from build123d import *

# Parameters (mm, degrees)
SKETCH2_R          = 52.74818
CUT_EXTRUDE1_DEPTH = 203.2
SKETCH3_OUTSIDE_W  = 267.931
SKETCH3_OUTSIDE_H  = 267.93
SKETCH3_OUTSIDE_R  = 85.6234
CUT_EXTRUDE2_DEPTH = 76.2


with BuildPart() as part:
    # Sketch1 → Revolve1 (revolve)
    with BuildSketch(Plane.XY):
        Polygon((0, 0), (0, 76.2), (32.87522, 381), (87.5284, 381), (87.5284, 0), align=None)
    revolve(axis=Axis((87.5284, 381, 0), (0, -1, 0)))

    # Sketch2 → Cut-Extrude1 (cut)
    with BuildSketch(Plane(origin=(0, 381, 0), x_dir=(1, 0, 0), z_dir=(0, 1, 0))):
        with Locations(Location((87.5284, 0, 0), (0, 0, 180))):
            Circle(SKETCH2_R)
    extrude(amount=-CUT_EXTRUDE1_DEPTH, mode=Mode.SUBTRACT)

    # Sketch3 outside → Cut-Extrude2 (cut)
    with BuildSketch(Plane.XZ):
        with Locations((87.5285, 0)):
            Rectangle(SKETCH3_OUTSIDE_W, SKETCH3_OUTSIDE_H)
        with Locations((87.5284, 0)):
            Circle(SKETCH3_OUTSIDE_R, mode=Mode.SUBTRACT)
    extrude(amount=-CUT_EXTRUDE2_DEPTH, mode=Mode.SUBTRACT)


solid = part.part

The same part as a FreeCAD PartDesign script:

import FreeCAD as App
import Part
import Sketcher
Q = App.Units.Quantity


def add_polygon(sketch, points):
    """Adds a closed chain of lines whose ends are joined by coincident constraints."""
    first, n = sketch.GeometryCount, len(points)
    for a, b in zip(points, points[1:] + points[:1]):
        sketch.addGeometry(Part.LineSegment(App.Vector(*a, 0), App.Vector(*b, 0)), False)
    for i in range(n):
        sketch.addConstraint(Sketcher.Constraint("Coincident", first + i, 2, first + (i + 1) % n, 1))

doc = App.newDocument("Part")
body = doc.addObject("PartDesign::Body", "Body")

# Sketch on XY plane
sketch1 = doc.addObject("Sketcher::SketchObject", "Sketch")
body.addObject(sketch1)
sketch1.AttachmentSupport = (doc.XY_Plane, [""])
sketch1.MapMode = "FlatFace"
add_polygon(sketch1, [(0, 76), (0, 0), (88, 0), (88, 381), (33, 381)])  # lines 0-4
sketch1.addGeometry(Part.LineSegment(App.Vector(88, 381, 0), App.Vector(88, 0, 0)), True)  # axis
sketch1.addConstraint([
    Sketcher.Constraint("Vertical", 0),
    Sketcher.Constraint("Horizontal", 1),
    Sketcher.Constraint("Vertical", 2),
    Sketcher.Constraint("Horizontal", 3),
    Sketcher.Constraint("Vertical", 5),
    Sketcher.Constraint("Coincident", 0, 2, -1, 1),
    Sketcher.Constraint("Coincident", 5, 1, 2, 2),
    Sketcher.Constraint("PointOnObject", 5, 2, -1),
    Sketcher.Constraint("DistanceY", 0, 2, 0, 1, Q("3 in")),
    Sketcher.Constraint("DistanceY", 2, 1, 2, 2, Q("15 in")),
    Sketcher.Constraint("DistanceX", 1, 1, 1, 2, Q("3.446 in")),
    Sketcher.Constraint("DistanceX", 3, 2, 3, 1, Q("2.1517 in")),
])
revolution = doc.addObject("PartDesign::Revolution", "Revolution")
body.addObject(revolution)
revolution.Profile = sketch1
revolution.ReferenceAxis = (sketch1, ["Axis0"])
revolution.Angle = 360

# Sketch on XZ plane
sketch2 = doc.addObject("Sketcher::SketchObject", "Sketch001")
body.addObject(sketch2)
sketch2.AttachmentSupport = (doc.XZ_Plane, [""])
sketch2.MapMode = "FlatFace"
sketch2.AttachmentOffset = App.Placement(App.Vector(0, 0, -15 * 25.4), App.Rotation())
sketch2.addGeometry(Part.Circle(App.Vector(88, 0, 0), App.Vector(0, 0, 1), 53), False)
sketch2.addConstraint([
    Sketcher.Constraint("PointOnObject", 0, 3, -1),
    Sketcher.Constraint("Diameter", 0, Q("4.1534 in")),
    Sketcher.Constraint("DistanceX", -1, 1, 0, 3, Q("3.446 in")),
])
pocket1 = doc.addObject("PartDesign::Pocket", "Pocket")
body.addObject(pocket1)
pocket1.Profile = sketch2
pocket1.Length = Q("8 in")
pocket1.Reversed = True

# Sketch on XZ plane
sketch3 = doc.addObject("Sketcher::SketchObject", "Sketch002")
body.addObject(sketch3)
sketch3.AttachmentSupport = (doc.XZ_Plane, [""])
sketch3.MapMode = "FlatFace"
add_polygon(sketch3, [(-46, 134), (-46, -134), (221, -134), (221, 134)])  # lines 0-3
sketch3.addGeometry(Part.Circle(App.Vector(88, 0, 0), App.Vector(0, 0, 1), 86), False)  # 4
sketch3.addConstraint([
    Sketcher.Constraint("Vertical", 0),
    Sketcher.Constraint("Horizontal", 1),
    Sketcher.Constraint("Vertical", 2),
    Sketcher.Constraint("Horizontal", 3),
    Sketcher.Constraint("PointOnObject", 4, 3, -1),
    Sketcher.Constraint("Diameter", 4, Q("6.742 in")),
    Sketcher.Constraint("DistanceX", -1, 1, 4, 3, Q("3.446 in")),
    Sketcher.Constraint("DistanceX", 1, 1, 1, 2, 267.931),
    Sketcher.Constraint("DistanceY", 0, 2, 0, 1, 267.93),
    Sketcher.Constraint("DistanceX", 0, 2, -1, 1, 46.437),
    Sketcher.Constraint("DistanceY", 0, 2, -1, 1, 133.965),
])
pocket2 = doc.addObject("PartDesign::Pocket", "Pocket001")
body.addObject(pocket2)
pocket2.Profile = sketch3
pocket2.Length = Q("3 in")

doc.recompute()
